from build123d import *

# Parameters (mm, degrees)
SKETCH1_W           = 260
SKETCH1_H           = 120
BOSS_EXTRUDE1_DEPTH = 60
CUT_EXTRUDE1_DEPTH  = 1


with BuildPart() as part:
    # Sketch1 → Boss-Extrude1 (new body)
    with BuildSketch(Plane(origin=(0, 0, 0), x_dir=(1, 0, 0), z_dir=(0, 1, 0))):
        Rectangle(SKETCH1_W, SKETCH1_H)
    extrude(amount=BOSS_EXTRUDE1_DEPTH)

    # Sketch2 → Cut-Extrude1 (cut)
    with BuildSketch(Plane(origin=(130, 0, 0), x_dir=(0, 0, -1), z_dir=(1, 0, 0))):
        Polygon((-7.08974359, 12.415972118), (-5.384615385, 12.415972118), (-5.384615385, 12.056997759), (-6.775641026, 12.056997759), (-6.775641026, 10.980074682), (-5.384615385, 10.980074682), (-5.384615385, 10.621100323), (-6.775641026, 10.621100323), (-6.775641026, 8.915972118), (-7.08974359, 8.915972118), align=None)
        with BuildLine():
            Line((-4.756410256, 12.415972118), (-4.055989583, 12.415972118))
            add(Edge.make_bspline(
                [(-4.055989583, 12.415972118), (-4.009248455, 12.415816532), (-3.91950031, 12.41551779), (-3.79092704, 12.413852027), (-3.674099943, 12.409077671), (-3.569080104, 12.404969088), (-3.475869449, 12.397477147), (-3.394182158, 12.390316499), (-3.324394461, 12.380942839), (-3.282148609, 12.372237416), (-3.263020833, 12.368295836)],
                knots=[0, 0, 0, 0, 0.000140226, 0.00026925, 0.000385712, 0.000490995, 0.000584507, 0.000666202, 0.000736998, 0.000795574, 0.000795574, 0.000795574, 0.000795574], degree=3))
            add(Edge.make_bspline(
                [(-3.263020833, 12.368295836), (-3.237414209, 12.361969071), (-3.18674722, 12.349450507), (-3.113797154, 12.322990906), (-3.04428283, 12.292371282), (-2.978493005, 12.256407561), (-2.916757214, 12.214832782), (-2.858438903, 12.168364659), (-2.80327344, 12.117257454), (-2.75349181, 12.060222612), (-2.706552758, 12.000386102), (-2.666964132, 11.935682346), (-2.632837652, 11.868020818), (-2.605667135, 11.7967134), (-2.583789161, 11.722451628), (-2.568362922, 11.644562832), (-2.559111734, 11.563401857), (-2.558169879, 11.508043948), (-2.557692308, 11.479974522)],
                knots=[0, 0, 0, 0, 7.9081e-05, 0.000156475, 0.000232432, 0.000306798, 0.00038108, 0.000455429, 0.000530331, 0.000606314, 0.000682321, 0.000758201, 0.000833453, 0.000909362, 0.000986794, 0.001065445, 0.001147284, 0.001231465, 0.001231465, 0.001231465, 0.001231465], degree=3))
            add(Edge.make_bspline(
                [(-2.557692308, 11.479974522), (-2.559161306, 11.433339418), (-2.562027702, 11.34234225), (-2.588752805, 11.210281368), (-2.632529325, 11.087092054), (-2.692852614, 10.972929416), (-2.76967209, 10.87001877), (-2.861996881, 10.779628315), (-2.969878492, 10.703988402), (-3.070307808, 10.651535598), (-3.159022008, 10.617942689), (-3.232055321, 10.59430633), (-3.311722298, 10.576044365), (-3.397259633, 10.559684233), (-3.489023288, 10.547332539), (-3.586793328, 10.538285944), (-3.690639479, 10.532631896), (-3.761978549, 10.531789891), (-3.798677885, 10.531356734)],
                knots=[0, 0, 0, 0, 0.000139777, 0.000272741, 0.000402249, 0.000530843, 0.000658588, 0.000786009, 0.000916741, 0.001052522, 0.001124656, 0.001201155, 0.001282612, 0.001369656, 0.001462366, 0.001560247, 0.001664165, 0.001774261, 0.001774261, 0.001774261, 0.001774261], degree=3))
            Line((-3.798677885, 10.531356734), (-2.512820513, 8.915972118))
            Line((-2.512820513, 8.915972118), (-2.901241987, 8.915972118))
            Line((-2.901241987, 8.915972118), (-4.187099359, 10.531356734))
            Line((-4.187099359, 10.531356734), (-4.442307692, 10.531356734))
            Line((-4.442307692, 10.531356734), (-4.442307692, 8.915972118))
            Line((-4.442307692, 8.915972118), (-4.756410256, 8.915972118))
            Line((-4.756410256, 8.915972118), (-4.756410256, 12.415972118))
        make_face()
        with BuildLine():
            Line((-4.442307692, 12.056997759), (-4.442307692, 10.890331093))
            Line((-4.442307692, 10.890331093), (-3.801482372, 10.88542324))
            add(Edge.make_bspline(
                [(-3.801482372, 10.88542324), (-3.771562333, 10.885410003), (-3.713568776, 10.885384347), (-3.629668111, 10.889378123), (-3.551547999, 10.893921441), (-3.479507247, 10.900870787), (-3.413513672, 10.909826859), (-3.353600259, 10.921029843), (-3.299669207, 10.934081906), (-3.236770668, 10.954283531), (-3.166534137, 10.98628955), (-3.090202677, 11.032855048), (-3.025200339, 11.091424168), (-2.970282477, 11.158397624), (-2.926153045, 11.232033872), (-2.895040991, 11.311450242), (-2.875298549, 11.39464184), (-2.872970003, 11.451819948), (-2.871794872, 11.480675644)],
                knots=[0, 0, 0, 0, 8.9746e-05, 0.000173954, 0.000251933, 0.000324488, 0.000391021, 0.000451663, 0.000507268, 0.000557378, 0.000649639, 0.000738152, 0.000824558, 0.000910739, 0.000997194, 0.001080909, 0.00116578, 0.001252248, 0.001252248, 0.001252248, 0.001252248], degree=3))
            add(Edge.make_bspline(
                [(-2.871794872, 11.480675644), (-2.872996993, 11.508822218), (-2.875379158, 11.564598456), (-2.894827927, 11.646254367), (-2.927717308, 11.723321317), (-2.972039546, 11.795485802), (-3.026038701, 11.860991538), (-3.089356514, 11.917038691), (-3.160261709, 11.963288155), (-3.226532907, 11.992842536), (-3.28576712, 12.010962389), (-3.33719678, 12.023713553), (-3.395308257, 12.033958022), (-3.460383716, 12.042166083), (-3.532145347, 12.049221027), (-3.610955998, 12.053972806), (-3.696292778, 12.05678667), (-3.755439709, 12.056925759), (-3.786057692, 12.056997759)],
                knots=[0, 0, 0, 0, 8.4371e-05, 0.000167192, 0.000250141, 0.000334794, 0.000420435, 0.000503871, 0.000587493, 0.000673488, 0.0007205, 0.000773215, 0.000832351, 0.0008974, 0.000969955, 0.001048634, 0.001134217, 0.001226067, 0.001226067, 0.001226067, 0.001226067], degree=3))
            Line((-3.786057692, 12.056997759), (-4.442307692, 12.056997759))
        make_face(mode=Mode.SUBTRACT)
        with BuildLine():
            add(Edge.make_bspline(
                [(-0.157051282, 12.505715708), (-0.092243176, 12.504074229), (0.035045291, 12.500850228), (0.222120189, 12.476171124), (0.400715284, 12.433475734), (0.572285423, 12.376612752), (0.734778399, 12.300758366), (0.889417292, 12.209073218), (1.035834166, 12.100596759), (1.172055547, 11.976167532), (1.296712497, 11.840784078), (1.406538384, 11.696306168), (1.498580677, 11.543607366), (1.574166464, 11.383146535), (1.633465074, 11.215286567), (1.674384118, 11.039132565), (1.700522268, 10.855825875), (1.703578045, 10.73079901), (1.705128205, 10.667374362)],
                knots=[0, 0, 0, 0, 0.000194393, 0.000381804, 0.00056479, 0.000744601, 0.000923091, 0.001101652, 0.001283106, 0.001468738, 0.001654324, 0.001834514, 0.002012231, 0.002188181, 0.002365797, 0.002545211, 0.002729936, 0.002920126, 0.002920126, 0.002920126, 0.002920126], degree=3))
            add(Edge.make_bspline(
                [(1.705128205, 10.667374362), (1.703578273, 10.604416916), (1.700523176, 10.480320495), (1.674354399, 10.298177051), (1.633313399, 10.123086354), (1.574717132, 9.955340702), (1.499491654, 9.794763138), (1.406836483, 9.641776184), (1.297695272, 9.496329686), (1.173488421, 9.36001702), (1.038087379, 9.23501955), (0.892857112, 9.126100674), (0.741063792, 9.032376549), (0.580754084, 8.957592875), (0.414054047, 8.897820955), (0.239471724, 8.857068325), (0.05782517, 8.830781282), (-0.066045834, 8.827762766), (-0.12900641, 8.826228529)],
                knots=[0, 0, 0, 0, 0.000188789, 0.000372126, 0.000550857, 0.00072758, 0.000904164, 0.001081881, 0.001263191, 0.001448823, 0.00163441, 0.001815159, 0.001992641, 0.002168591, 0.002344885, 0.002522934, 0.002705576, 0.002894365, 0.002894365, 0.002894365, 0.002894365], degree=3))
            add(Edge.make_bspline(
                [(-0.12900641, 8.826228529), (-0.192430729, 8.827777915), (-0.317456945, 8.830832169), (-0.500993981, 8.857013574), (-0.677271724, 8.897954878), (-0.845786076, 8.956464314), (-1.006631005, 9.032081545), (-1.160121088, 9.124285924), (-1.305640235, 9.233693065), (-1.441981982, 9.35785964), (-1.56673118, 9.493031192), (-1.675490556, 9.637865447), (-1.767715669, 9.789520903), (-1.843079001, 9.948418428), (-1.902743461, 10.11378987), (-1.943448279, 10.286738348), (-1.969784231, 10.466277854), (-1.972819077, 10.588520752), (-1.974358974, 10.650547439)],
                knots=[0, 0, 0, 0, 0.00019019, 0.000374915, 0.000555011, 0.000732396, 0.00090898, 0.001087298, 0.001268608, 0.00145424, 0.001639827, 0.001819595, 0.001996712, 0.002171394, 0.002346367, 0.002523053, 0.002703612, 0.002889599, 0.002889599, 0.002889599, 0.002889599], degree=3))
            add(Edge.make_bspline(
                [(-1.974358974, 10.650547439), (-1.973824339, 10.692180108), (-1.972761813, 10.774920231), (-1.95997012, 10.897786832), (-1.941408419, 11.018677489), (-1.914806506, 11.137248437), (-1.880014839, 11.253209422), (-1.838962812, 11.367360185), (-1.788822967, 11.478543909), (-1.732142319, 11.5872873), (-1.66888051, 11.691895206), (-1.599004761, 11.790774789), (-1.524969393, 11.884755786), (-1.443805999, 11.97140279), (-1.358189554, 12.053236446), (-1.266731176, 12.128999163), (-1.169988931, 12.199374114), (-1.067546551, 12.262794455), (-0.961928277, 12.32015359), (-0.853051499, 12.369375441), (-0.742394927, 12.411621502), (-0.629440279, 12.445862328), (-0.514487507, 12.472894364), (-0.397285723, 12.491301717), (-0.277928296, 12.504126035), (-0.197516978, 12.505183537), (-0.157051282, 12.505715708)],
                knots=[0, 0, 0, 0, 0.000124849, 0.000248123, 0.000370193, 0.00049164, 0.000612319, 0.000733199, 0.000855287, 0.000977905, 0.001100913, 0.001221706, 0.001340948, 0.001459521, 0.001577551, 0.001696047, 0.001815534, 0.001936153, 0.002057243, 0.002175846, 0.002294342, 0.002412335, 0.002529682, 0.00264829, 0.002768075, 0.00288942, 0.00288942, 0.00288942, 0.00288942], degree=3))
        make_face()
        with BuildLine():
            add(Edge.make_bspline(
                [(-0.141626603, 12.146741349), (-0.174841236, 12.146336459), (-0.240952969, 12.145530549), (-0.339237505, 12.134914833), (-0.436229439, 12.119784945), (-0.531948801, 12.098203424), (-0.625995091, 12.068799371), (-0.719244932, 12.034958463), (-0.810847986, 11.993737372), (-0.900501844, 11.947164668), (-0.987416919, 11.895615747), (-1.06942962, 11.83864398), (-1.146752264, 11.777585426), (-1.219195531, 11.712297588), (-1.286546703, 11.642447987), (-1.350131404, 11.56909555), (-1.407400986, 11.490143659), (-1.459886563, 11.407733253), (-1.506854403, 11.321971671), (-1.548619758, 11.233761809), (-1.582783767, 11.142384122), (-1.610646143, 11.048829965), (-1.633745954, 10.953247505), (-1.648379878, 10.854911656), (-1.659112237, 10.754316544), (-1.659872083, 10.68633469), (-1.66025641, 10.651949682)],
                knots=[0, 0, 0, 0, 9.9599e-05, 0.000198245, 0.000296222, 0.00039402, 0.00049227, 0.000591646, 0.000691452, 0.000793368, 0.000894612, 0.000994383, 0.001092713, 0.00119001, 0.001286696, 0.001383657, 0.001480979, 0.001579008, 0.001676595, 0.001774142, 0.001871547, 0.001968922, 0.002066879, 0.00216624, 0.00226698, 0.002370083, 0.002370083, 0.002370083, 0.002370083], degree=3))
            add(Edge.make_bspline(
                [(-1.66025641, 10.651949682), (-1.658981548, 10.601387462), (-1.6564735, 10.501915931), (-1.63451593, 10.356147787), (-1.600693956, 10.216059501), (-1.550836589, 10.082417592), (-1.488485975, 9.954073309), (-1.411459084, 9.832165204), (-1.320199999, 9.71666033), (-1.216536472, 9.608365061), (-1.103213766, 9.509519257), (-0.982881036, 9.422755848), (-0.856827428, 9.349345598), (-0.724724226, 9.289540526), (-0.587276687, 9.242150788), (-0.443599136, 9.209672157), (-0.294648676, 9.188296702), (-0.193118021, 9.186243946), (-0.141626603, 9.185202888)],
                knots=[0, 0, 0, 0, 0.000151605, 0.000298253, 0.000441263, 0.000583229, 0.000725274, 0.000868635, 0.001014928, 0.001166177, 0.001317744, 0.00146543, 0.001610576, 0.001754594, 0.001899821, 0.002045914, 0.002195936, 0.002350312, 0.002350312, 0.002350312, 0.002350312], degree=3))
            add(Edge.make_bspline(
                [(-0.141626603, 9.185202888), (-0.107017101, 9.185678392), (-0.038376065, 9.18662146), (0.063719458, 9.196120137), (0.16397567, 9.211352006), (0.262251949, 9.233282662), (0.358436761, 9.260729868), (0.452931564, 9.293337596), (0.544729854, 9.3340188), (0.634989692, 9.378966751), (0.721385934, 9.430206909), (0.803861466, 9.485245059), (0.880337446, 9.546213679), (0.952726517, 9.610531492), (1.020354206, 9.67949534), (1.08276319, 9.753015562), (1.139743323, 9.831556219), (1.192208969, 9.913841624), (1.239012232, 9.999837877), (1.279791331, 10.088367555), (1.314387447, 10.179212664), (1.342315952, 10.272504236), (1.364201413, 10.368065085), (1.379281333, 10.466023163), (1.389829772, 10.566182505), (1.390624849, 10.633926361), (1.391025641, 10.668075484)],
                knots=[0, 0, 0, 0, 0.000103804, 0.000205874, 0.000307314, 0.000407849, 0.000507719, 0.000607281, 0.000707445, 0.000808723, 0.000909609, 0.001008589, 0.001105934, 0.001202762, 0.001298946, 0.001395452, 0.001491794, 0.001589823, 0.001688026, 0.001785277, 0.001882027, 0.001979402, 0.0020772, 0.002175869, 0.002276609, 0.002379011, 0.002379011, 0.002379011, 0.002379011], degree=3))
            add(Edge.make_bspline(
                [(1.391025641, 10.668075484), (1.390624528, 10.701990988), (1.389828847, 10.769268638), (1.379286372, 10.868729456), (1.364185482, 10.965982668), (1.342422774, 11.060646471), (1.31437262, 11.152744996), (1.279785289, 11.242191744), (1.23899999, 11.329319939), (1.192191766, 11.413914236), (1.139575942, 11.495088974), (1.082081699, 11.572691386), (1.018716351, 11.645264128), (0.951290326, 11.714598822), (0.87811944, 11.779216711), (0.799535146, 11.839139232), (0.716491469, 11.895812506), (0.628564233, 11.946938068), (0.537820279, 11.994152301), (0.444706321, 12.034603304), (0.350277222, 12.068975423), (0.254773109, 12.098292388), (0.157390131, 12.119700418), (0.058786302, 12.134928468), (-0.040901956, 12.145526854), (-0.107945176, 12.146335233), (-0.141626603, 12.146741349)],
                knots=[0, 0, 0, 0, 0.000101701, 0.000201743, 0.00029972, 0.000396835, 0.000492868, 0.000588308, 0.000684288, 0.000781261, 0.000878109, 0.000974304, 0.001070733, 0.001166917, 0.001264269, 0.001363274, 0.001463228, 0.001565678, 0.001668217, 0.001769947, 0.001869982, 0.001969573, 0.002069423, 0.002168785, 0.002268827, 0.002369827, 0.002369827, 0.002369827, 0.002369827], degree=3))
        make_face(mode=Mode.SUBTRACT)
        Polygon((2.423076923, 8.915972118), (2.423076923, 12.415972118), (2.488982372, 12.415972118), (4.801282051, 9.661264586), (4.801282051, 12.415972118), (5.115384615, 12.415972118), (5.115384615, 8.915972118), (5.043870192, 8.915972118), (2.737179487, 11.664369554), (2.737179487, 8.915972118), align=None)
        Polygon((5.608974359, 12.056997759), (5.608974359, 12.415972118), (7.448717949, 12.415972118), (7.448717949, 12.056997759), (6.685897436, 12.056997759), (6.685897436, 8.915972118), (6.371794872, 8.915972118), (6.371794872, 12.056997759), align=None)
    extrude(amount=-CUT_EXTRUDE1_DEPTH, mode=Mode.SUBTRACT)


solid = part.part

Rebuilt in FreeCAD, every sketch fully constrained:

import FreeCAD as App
import Part
import Sketcher
Q = App.Units.Quantity


def add_polygon(sketch, points):
    """Adds a closed chain of lines whose ends are joined by coincident constraints."""
    first, n = sketch.GeometryCount, len(points)
    for a, b in zip(points, points[1:] + points[:1]):
        sketch.addGeometry(Part.LineSegment(App.Vector(*a, 0), App.Vector(*b, 0)), False)
    for i in range(n):
        sketch.addConstraint(Sketcher.Constraint("Coincident", first + i, 2, first + (i + 1) % n, 1))

doc = App.newDocument("Part")
body = doc.addObject("PartDesign::Body", "Body")

# Sketch on XZ plane
sketch1 = doc.addObject("Sketcher::SketchObject", "Sketch")
body.addObject(sketch1)
sketch1.AttachmentSupport = (doc.XZ_Plane, [""])
sketch1.MapMode = "FlatFace"
add_polygon(sketch1, [(-130, -60), (-130, 60), (130, 60), (130, -60)])  # lines 0-3
sketch1.addConstraint([
    Sketcher.Constraint("Vertical", 0),
    Sketcher.Constraint("Horizontal", 1),
    Sketcher.Constraint("Vertical", 2),
    Sketcher.Constraint("Horizontal", 3),
    Sketcher.Constraint("Symmetric", 0, 2, 2, 2, -1, 1),
    Sketcher.Constraint("DistanceX", 1, 1, 1, 2, Q("260 mm")),
    Sketcher.Constraint("DistanceY", 0, 1, 0, 2, Q("120 mm")),
])
pad1 = doc.addObject("PartDesign::Pad", "Pad")
body.addObject(pad1)
pad1.Profile = sketch1
pad1.Length = 60
pad1.Reversed = True

# Sketch on YZ plane
sketch2 = doc.addObject("Sketcher::SketchObject", "Sketch001")
body.addObject(sketch2)
sketch2.AttachmentSupport = (doc.YZ_Plane, [""])
sketch2.MapMode = "FlatFace"
sketch2.AttachmentOffset = App.Placement(App.Vector(0, 0, 130), App.Rotation())
add_polygon(sketch2, [(12.415972, 5.384615), (12.415972, 7.089744), (8.915972, 7.089744), (8.915972, 6.775641), (10.6211, 6.775641), (10.6211, 5.384615), (10.980075, 5.384615), (10.980075, 6.775641), (12.056998, 6.775641), (12.056998, 5.384615)])  # lines 0-9
sketch2.addGeometry(Part.LineSegment(App.Vector(12.415972, 4.05599, 0), App.Vector(12.415972, 4.75641, 0)), False)  # 10
sketch2.addGeometry(Part.LineSegment(App.Vector(12.415972, 4.75641, 0), App.Vector(8.915972, 4.75641, 0)), False)  # 11
sketch2.addGeometry(Part.LineSegment(App.Vector(8.915972, 4.75641, 0), App.Vector(8.915972, 4.442308, 0)), False)  # 12
sketch2.addGeometry(Part.LineSegment(App.Vector(8.915972, 4.442308, 0), App.Vector(10.531357, 4.442308, 0)), False)  # 13
sketch2.addGeometry(Part.LineSegment(App.Vector(10.531357, 4.442308, 0), App.Vector(10.531357, 4.187099, 0)), False)  # 14
sketch2.addGeometry(Part.LineSegment(App.Vector(10.531357, 4.187099, 0), App.Vector(8.915972, 2.901242, 0)), False)  # 15
sketch2.addGeometry(Part.LineSegment(App.Vector(8.915972, 2.901242, 0), App.Vector(8.915972, 2.512821, 0)), False)  # 16
sketch2.addGeometry(Part.LineSegment(App.Vector(8.915972, 2.512821, 0), App.Vector(10.531357, 3.798678, 0)), False)  # 17
sketch2.addGeometry(Part.BSplineCurve([App.Vector(11.479975, 2.557692, 0), App.Vector(11.433339, 2.559161, 0), App.Vector(11.342342, 2.562028, 0), App.Vector(11.210281, 2.588753, 0), App.Vector(11.087092, 2.632529, 0), App.Vector(10.972929, 2.692853, 0), App.Vector(10.870019, 2.769672, 0), App.Vector(10.779628, 2.861997, 0), App.Vector(10.703988, 2.969878, 0), App.Vector(10.651536, 3.070308, 0), App.Vector(10.617943, 3.159022, 0), App.Vector(10.594306, 3.232055, 0), App.Vector(10.576044, 3.311722, 0), App.Vector(10.559684, 3.39726, 0), App.Vector(10.547333, 3.489023, 0), App.Vector(10.538286, 3.586793, 0), App.Vector(10.532632, 3.690639, 0), App.Vector(10.53179, 3.761979, 0), App.Vector(10.531357, 3.798678, 0)], [4, 1, 1, 1, 1, 1, 1, 1, 1, 1, 1, 1, 1, 1, 1, 1, 4], [0, 0.000139777, 0.000272741, 0.000402249, 0.000530843, 0.000658588, 0.000786009, 0.000916741, 0.001052522, 0.001124656, 0.001201155, 0.001282612, 0.001369656, 0.001462366, 0.001560247, 0.001664165, 0.001774261], False, 3, [1, 1, 1, 1, 1, 1, 1, 1, 1, 1, 1, 1, 1, 1, 1, 1, 1, 1, 1], False), False)  # 18
sketch2.addGeometry(Part.BSplineCurve([App.Vector(12.368296, 3.263021, 0), App.Vector(12.361969, 3.237414, 0), App.Vector(12.349451, 3.186747, 0), App.Vector(12.322991, 3.113797, 0), App.Vector(12.292371, 3.044283, 0), App.Vector(12.256408, 2.978493, 0), App.Vector(12.214833, 2.916757, 0), App.Vector(12.168365, 2.858439, 0), App.Vector(12.117257, 2.803273, 0), App.Vector(12.060223, 2.753492, 0), App.Vector(12.000386, 2.706553, 0), App.Vector(11.935682, 2.666964, 0), App.Vector(11.868021, 2.632838, 0), App.Vector(11.796713, 2.605667, 0), App.Vector(11.722452, 2.583789, 0), App.Vector(11.644563, 2.568363, 0), App.Vector(11.563402, 2.559112, 0), App.Vector(11.508044, 2.55817, 0), App.Vector(11.479975, 2.557692, 0)], [4, 1, 1, 1, 1, 1, 1, 1, 1, 1, 1, 1, 1, 1, 1, 1, 4], [0, 0.000079081, 0.000156475, 0.000232432, 0.000306798, 0.00038108, 0.000455429, 0.000530331, 0.000606314, 0.000682321, 0.000758201, 0.000833453, 0.000909362, 0.000986794, 0.001065445, 0.001147284, 0.001231465], False, 3, [1, 1, 1, 1, 1, 1, 1, 1, 1, 1, 1, 1, 1, 1, 1, 1, 1, 1, 1], False), False)  # 19
sketch2.addGeometry(Part.BSplineCurve([App.Vector(12.415972, 4.05599, 0), App.Vector(12.415817, 4.009248, 0), App.Vector(12.415518, 3.9195, 0), App.Vector(12.413852, 3.790927, 0), App.Vector(12.409078, 3.6741, 0), App.Vector(12.404969, 3.56908, 0), App.Vector(12.397477, 3.475869, 0), App.Vector(12.390316, 3.394182, 0), App.Vector(12.380943, 3.324394, 0), App.Vector(12.372237, 3.282149, 0), App.Vector(12.368296, 3.263021, 0)], [4, 1, 1, 1, 1, 1, 1, 1, 4], [0, 0.000140226, 0.00026925, 0.000385712, 0.000490995, 0.000584507, 0.000666202, 0.000736998, 0.000795574], False, 3, [1, 1, 1, 1, 1, 1, 1, 1, 1, 1, 1], False), False)  # 20
sketch2.addGeometry(Part.LineSegment(App.Vector(12.056998, 4.442308, 0), App.Vector(12.056998, 3.786058, 0)), False)  # 21
sketch2.addGeometry(Part.BSplineCurve([App.Vector(11.480676, 2.871795, 0), App.Vector(11.508822, 2.872997, 0), App.Vector(11.564598, 2.875379, 0), App.Vector(11.646254, 2.894828, 0), App.Vector(11.723321, 2.927717, 0), App.Vector(11.795486, 2.97204, 0), App.Vector(11.860992, 3.026039, 0), App.Vector(11.917039, 3.089357, 0), App.Vector(11.963288, 3.160262, 0), App.Vector(11.992843, 3.226533, 0), App.Vector(12.010962, 3.285767, 0), App.Vector(12.023714, 3.337197, 0), App.Vector(12.033958, 3.395308, 0), App.Vector(12.042166, 3.460384, 0), App.Vector(12.049221, 3.532145, 0), App.Vector(12.053973, 3.610956, 0), App.Vector(12.056787, 3.696293, 0), App.Vector(12.056926, 3.75544, 0), App.Vector(12.056998, 3.786058, 0)], [4, 1, 1, 1, 1, 1, 1, 1, 1, 1, 1, 1, 1, 1, 1, 1, 4], [0, 0.000084371, 0.000167192, 0.000250141, 0.000334794, 0.000420435, 0.000503871, 0.000587493, 0.000673488, 0.0007205, 0.000773215, 0.000832351, 0.0008974, 0.000969955, 0.001048634, 0.001134217, 0.001226067], False, 3, [1, 1, 1, 1, 1, 1, 1, 1, 1, 1, 1, 1, 1, 1, 1, 1, 1, 1, 1], False), False)  # 22
sketch2.addGeometry(Part.BSplineCurve([App.Vector(10.885423, 3.801482, 0), App.Vector(10.88541, 3.771562, 0), App.Vector(10.885384, 3.713569, 0), App.Vector(10.889378, 3.629668, 0), App.Vector(10.893921, 3.551548, 0), App.Vector(10.900871, 3.479507, 0), App.Vector(10.909827, 3.413514, 0), App.Vector(10.92103, 3.3536, 0), App.Vector(10.934082, 3.299669, 0), App.Vector(10.954284, 3.236771, 0), App.Vector(10.98629, 3.166534, 0), App.Vector(11.032855, 3.090203, 0), App.Vector(11.091424, 3.0252, 0), App.Vector(11.158398, 2.970282, 0), App.Vector(11.232034, 2.926153, 0), App.Vector(11.31145, 2.895041, 0), App.Vector(11.394642, 2.875299, 0), App.Vector(11.45182, 2.87297, 0), App.Vector(11.480676, 2.871795, 0)], [4, 1, 1, 1, 1, 1, 1, 1, 1, 1, 1, 1, 1, 1, 1, 1, 4], [0, 0.000089746, 0.000173954, 0.000251933, 0.000324488, 0.000391021, 0.000451663, 0.000507268, 0.000557378, 0.000649639, 0.000738152, 0.000824558, 0.000910739, 0.000997194, 0.001080909, 0.00116578, 0.001252248], False, 3, [1, 1, 1, 1, 1, 1, 1, 1, 1, 1, 1, 1, 1, 1, 1, 1, 1, 1, 1], False), False)  # 23
sketch2.addGeometry(Part.LineSegment(App.Vector(10.885423, 3.801482, 0), App.Vector(10.890331, 4.442308, 0)), False)  # 24
sketch2.addGeometry(Part.LineSegment(App.Vector(10.890331, 4.442308, 0), App.Vector(12.056998, 4.442308, 0)), False)  # 25
sketch2.addGeometry(Part.BSplineCurve([App.Vector(12.505716, 0.157051, 0), App.Vector(12.504074, 0.092243, 0), App.Vector(12.50085, -0.035045, 0), App.Vector(12.476171, -0.22212, 0), App.Vector(12.433476, -0.400715, 0), App.Vector(12.376613, -0.572285, 0), App.Vector(12.300758, -0.734778, 0), App.Vector(12.209073, -0.889417, 0), App.Vector(12.100597, -1.035834, 0), App.Vector(11.976168, -1.172056, 0), App.Vector(11.840784, -1.296712, 0), App.Vector(11.696306, -1.406538, 0), App.Vector(11.543607, -1.498581, 0), App.Vector(11.383147, -1.574166, 0), App.Vector(11.215287, -1.633465, 0), App.Vector(11.039133, -1.674384, 0), App.Vector(10.855826, -1.700522, 0), App.Vector(10.730799, -1.703578, 0), App.Vector(10.667374, -1.705128, 0)], [4, 1, 1, 1, 1, 1, 1, 1, 1, 1, 1, 1, 1, 1, 1, 1, 4], [0, 0.000194393, 0.000381804, 0.00056479, 0.000744601, 0.000923091, 0.001101652, 0.001283106, 0.001468738, 0.001654324, 0.001834514, 0.002012231, 0.002188181, 0.002365797, 0.002545211, 0.002729936, 0.002920126], False, 3, [1, 1, 1, 1, 1, 1, 1, 1, 1, 1, 1, 1, 1, 1, 1, 1, 1, 1, 1], False), False)  # 26
sketch2.addGeometry(Part.BSplineCurve([App.Vector(10.650547, 1.974359, 0), App.Vector(10.69218, 1.973824, 0), App.Vector(10.77492, 1.972762, 0), App.Vector(10.897787, 1.95997, 0), App.Vector(11.018677, 1.941408, 0), App.Vector(11.137248, 1.914807, 0), App.Vector(11.253209, 1.880015, 0), App.Vector(11.36736, 1.838963, 0), App.Vector(11.478544, 1.788823, 0), App.Vector(11.587287, 1.732142, 0), App.Vector(11.691895, 1.668881, 0), App.Vector(11.790775, 1.599005, 0), App.Vector(11.884756, 1.524969, 0), App.Vector(11.971403, 1.443806, 0), App.Vector(12.053236, 1.35819, 0), App.Vector(12.128999, 1.266731, 0), App.Vector(12.199374, 1.169989, 0), App.Vector(12.262794, 1.067547, 0), App.Vector(12.320154, 0.961928, 0), App.Vector(12.369375, 0.853051, 0), App.Vector(12.411622, 0.742395, 0), App.Vector(12.445862, 0.62944, 0), App.Vector(12.472894, 0.514488, 0), App.Vector(12.491302, 0.397286, 0), App.Vector(12.504126, 0.277928, 0), App.Vector(12.505184, 0.197517, 0), App.Vector(12.505716, 0.157051, 0)], [4, 1, 1, 1, 1, 1, 1, 1, 1, 1, 1, 1, 1, 1, 1, 1, 1, 1, 1, 1, 1, 1, 1, 1, 4], [0, 0.000124849, 0.000248123, 0.000370193, 0.00049164, 0.000612319, 0.000733199, 0.000855287, 0.000977905, 0.001100913, 0.001221706, 0.001340948, 0.001459521, 0.001577551, 0.001696047, 0.001815534, 0.001936153, 0.002057243, 0.002175846, 0.002294342, 0.002412335, 0.002529682, 0.00264829, 0.002768075, 0.00288942], False, 3, [1, 1, 1, 1, 1, 1, 1, 1, 1, 1, 1, 1, 1, 1, 1, 1, 1, 1, 1, 1, 1, 1, 1, 1, 1, 1, 1], False), False)  # 27
sketch2.addGeometry(Part.BSplineCurve([App.Vector(8.826229, 0.129006, 0), App.Vector(8.827778, 0.192431, 0), App.Vector(8.830832, 0.317457, 0), App.Vector(8.857014, 0.500994, 0), App.Vector(8.897955, 0.677272, 0), App.Vector(8.956464, 0.845786, 0), App.Vector(9.032082, 1.006631, 0), App.Vector(9.124286, 1.160121, 0), App.Vector(9.233693, 1.30564, 0), App.Vector(9.35786, 1.441982, 0), App.Vector(9.493031, 1.566731, 0), App.Vector(9.637865, 1.675491, 0), App.Vector(9.789521, 1.767716, 0), App.Vector(9.948418, 1.843079, 0), App.Vector(10.11379, 1.902743, 0), App.Vector(10.286738, 1.943448, 0), App.Vector(10.466278, 1.969784, 0), App.Vector(10.588521, 1.972819, 0), App.Vector(10.650547, 1.974359, 0)], [4, 1, 1, 1, 1, 1, 1, 1, 1, 1, 1, 1, 1, 1, 1, 1, 4], [0, 0.00019019, 0.000374915, 0.000555011, 0.000732396, 0.00090898, 0.001087298, 0.001268608, 0.00145424, 0.001639827, 0.001819595, 0.001996712, 0.002171394, 0.002346367, 0.002523053, 0.002703612, 0.002889599], False, 3, [1, 1, 1, 1, 1, 1, 1, 1, 1, 1, 1, 1, 1, 1, 1, 1, 1, 1, 1], False), False)  # 28
sketch2.addGeometry(Part.BSplineCurve([App.Vector(10.667374, -1.705128, 0), App.Vector(10.604417, -1.703578, 0), App.Vector(10.48032, -1.700523, 0), App.Vector(10.298177, -1.674354, 0), App.Vector(10.123086, -1.633313, 0), App.Vector(9.955341, -1.574717, 0), App.Vector(9.794763, -1.499492, 0), App.Vector(9.641776, -1.406836, 0), App.Vector(9.49633, -1.297695, 0), App.Vector(9.360017, -1.173488, 0), App.Vector(9.23502, -1.038087, 0), App.Vector(9.126101, -0.892857, 0), App.Vector(9.032377, -0.741064, 0), App.Vector(8.957593, -0.580754, 0), App.Vector(8.897821, -0.414054, 0), App.Vector(8.857068, -0.239472, 0), App.Vector(8.830781, -0.057825, 0), App.Vector(8.827763, 0.066046, 0), App.Vector(8.826229, 0.129006, 0)], [4, 1, 1, 1, 1, 1, 1, 1, 1, 1, 1, 1, 1, 1, 1, 1, 4], [0, 0.000188789, 0.000372126, 0.000550857, 0.00072758, 0.000904164, 0.001081881, 0.001263191, 0.001448823, 0.00163441, 0.001815159, 0.001992641, 0.002168591, 0.002344885, 0.002522934, 0.002705576, 0.002894365], False, 3, [1, 1, 1, 1, 1, 1, 1, 1, 1, 1, 1, 1, 1, 1, 1, 1, 1, 1, 1], False), False)  # 29
sketch2.addGeometry(Part.BSplineCurve([App.Vector(10.668075, -1.391026, 0), App.Vector(10.701991, -1.390625, 0), App.Vector(10.769269, -1.389829, 0), App.Vector(10.868729, -1.379286, 0), App.Vector(10.965983, -1.364185, 0), App.Vector(11.060646, -1.342423, 0), App.Vector(11.152745, -1.314373, 0), App.Vector(11.242192, -1.279785, 0), App.Vector(11.32932, -1.239, 0), App.Vector(11.413914, -1.192192, 0), App.Vector(11.495089, -1.139576, 0), App.Vector(11.572691, -1.082082, 0), App.Vector(11.645264, -1.018716, 0), App.Vector(11.714599, -0.95129, 0), App.Vector(11.779217, -0.878119, 0), App.Vector(11.839139, -0.799535, 0), App.Vector(11.895813, -0.716491, 0), App.Vector(11.946938, -0.628564, 0), App.Vector(11.994152, -0.53782, 0), App.Vector(12.034603, -0.444706, 0), App.Vector(12.068975, -0.350277, 0), App.Vector(12.098292, -0.254773, 0), App.Vector(12.1197, -0.15739, 0), App.Vector(12.134928, -0.058786, 0), App.Vector(12.145527, 0.040902, 0), App.Vector(12.146335, 0.107945, 0), App.Vector(12.146741, 0.141627, 0)], [4, 1, 1, 1, 1, 1, 1, 1, 1, 1, 1, 1, 1, 1, 1, 1, 1, 1, 1, 1, 1, 1, 1, 1, 4], [0, 0.000101701, 0.000201743, 0.00029972, 0.000396835, 0.000492868, 0.000588308, 0.000684288, 0.000781261, 0.000878109, 0.000974304, 0.001070733, 0.001166917, 0.001264269, 0.001363274, 0.001463228, 0.001565678, 0.001668217, 0.001769947, 0.001869982, 0.001969573, 0.002069423, 0.002168785, 0.002268827, 0.002369827], False, 3, [1, 1, 1, 1, 1, 1, 1, 1, 1, 1, 1, 1, 1, 1, 1, 1, 1, 1, 1, 1, 1, 1, 1, 1, 1, 1, 1], False), False)  # 30
sketch2.addGeometry(Part.BSplineCurve([App.Vector(9.185203, 0.141627, 0), App.Vector(9.185678, 0.107017, 0), App.Vector(9.186621, 0.038376, 0), App.Vector(9.19612, -0.063719, 0), App.Vector(9.211352, -0.163976, 0), App.Vector(9.233283, -0.262252, 0), App.Vector(9.26073, -0.358437, 0), App.Vector(9.293338, -0.452932, 0), App.Vector(9.334019, -0.54473, 0), App.Vector(9.378967, -0.63499, 0), App.Vector(9.430207, -0.721386, 0), App.Vector(9.485245, -0.803861, 0), App.Vector(9.546214, -0.880337, 0), App.Vector(9.610531, -0.952727, 0), App.Vector(9.679495, -1.020354, 0), App.Vector(9.753016, -1.082763, 0), App.Vector(9.831556, -1.139743, 0), App.Vector(9.913842, -1.192209, 0), App.Vector(9.999838, -1.239012, 0), App.Vector(10.088368, -1.279791, 0), App.Vector(10.179213, -1.314387, 0), App.Vector(10.272504, -1.342316, 0), App.Vector(10.368065, -1.364201, 0), App.Vector(10.466023, -1.379281, 0), App.Vector(10.566183, -1.38983, 0), App.Vector(10.633926, -1.390625, 0), App.Vector(10.668075, -1.391026, 0)], [4, 1, 1, 1, 1, 1, 1, 1, 1, 1, 1, 1, 1, 1, 1, 1, 1, 1, 1, 1, 1, 1, 1, 1, 4], [0, 0.000103804, 0.000205874, 0.000307314, 0.000407849, 0.000507719, 0.000607281, 0.000707445, 0.000808723, 0.000909609, 0.001008589, 0.001105934, 0.001202762, 0.001298946, 0.001395452, 0.001491794, 0.001589823, 0.001688026, 0.001785277, 0.001882027, 0.001979402, 0.0020772, 0.002175869, 0.002276609, 0.002379011], False, 3, [1, 1, 1, 1, 1, 1, 1, 1, 1, 1, 1, 1, 1, 1, 1, 1, 1, 1, 1, 1, 1, 1, 1, 1, 1, 1, 1], False), False)  # 31
sketch2.addGeometry(Part.BSplineCurve([App.Vector(10.65195, 1.660256, 0), App.Vector(10.601387, 1.658982, 0), App.Vector(10.501916, 1.656473, 0), App.Vector(10.356148, 1.634516, 0), App.Vector(10.21606, 1.600694, 0), App.Vector(10.082418, 1.550837, 0), App.Vector(9.954073, 1.488486, 0), App.Vector(9.832165, 1.411459, 0), App.Vector(9.71666, 1.3202, 0), App.Vector(9.608365, 1.216536, 0), App.Vector(9.509519, 1.103214, 0), App.Vector(9.422756, 0.982881, 0), App.Vector(9.349346, 0.856827, 0), App.Vector(9.289541, 0.724724, 0), App.Vector(9.242151, 0.587277, 0), App.Vector(9.209672, 0.443599, 0), App.Vector(9.188297, 0.294649, 0), App.Vector(9.186244, 0.193118, 0), App.Vector(9.185203, 0.141627, 0)], [4, 1, 1, 1, 1, 1, 1, 1, 1, 1, 1, 1, 1, 1, 1, 1, 4], [0, 0.000151605, 0.000298253, 0.000441263, 0.000583229, 0.000725274, 0.000868635, 0.001014928, 0.001166177, 0.001317744, 0.00146543, 0.001610576, 0.001754594, 0.001899821, 0.002045914, 0.002195936, 0.002350312], False, 3, [1, 1, 1, 1, 1, 1, 1, 1, 1, 1, 1, 1, 1, 1, 1, 1, 1, 1, 1], False), False)  # 32
sketch2.addGeometry(Part.BSplineCurve([App.Vector(12.146741, 0.141627, 0), App.Vector(12.146336, 0.174841, 0), App.Vector(12.145531, 0.240953, 0), App.Vector(12.134915, 0.339238, 0), App.Vector(12.119785, 0.436229, 0), App.Vector(12.098203, 0.531949, 0), App.Vector(12.068799, 0.625995, 0), App.Vector(12.034958, 0.719245, 0), App.Vector(11.993737, 0.810848, 0), App.Vector(11.947165, 0.900502, 0), App.Vector(11.895616, 0.987417, 0), App.Vector(11.838644, 1.06943, 0), App.Vector(11.777585, 1.146752, 0), App.Vector(11.712298, 1.219196, 0), App.Vector(11.642448, 1.286547, 0), App.Vector(11.569096, 1.350131, 0), App.Vector(11.490144, 1.407401, 0), App.Vector(11.407733, 1.459887, 0), App.Vector(11.321972, 1.506854, 0), App.Vector(11.233762, 1.54862, 0), App.Vector(11.142384, 1.582784, 0), App.Vector(11.04883, 1.610646, 0), App.Vector(10.953248, 1.633746, 0), App.Vector(10.854912, 1.64838, 0), App.Vector(10.754317, 1.659112, 0), App.Vector(10.686335, 1.659872, 0), App.Vector(10.65195, 1.660256, 0)], [4, 1, 1, 1, 1, 1, 1, 1, 1, 1, 1, 1, 1, 1, 1, 1, 1, 1, 1, 1, 1, 1, 1, 1, 4], [0, 0.000099599, 0.000198245, 0.000296222, 0.00039402, 0.00049227, 0.000591646, 0.000691452, 0.000793368, 0.000894612, 0.000994383, 0.001092713, 0.00119001, 0.001286696, 0.001383657, 0.001480979, 0.001579008, 0.001676595, 0.001774142, 0.001871547, 0.001968922, 0.002066879, 0.00216624, 0.00226698, 0.002370083], False, 3, [1, 1, 1, 1, 1, 1, 1, 1, 1, 1, 1, 1, 1, 1, 1, 1, 1, 1, 1, 1, 1, 1, 1, 1, 1, 1, 1], False), False)  # 33
add_polygon(sketch2, [(12.415972, -2.423077), (8.915972, -2.423077), (8.915972, -2.737179), (11.66437, -2.737179), (8.915972, -5.04387), (8.915972, -5.115385), (12.415972, -5.115385), (12.415972, -4.801282), (9.661265, -4.801282), (12.415972, -2.488982)])  # lines 34-43
add_polygon(sketch2, [(12.415972, -5.608974), (12.056998, -5.608974), (12.056998, -6.371795), (8.915972, -6.371795), (8.915972, -6.685897), (12.056998, -6.685897), (12.056998, -7.448718), (12.415972, -7.448718)])  # lines 44-51
sketch2.addConstraint([
    Sketcher.Constraint("Block", 18),
    Sketcher.Constraint("Block", 19),
    Sketcher.Constraint("Block", 20),
    Sketcher.Constraint("Block", 22),
    Sketcher.Constraint("Block", 23),
    Sketcher.Constraint("Block", 26),
    Sketcher.Constraint("Block", 27),
    Sketcher.Constraint("Block", 28),
    Sketcher.Constraint("Block", 29),
    Sketcher.Constraint("Block", 30),
    Sketcher.Constraint("Block", 31),
    Sketcher.Constraint("Block", 32),
    Sketcher.Constraint("Block", 33),
    Sketcher.Constraint("Coincident", 10, 2, 11, 1),
    Sketcher.Constraint("Coincident", 11, 2, 12, 1),
    Sketcher.Constraint("Coincident", 12, 2, 13, 1),
    Sketcher.Constraint("Coincident", 13, 2, 14, 1),
    Sketcher.Constraint("Coincident", 14, 2, 15, 1),
    Sketcher.Constraint("Coincident", 15, 2, 16, 1),
    Sketcher.Constraint("Coincident", 16, 2, 17, 1),
    Sketcher.Constraint("Coincident", 17, 2, 18, 2),
    Sketcher.Constraint("Coincident", 20, 1, 10, 1),
    Sketcher.Constraint("Coincident", 21, 2, 22, 2),
    Sketcher.Constraint("Coincident", 23, 1, 24, 1),
    Sketcher.Constraint("Coincident", 24, 2, 25, 1),
    Sketcher.Constraint("Coincident", 25, 2, 21, 1),
    Sketcher.Constraint("Vertical", 0),
    Sketcher.Constraint("Horizontal", 1),
    Sketcher.Constraint("Vertical", 2),
    Sketcher.Constraint("Horizontal", 3),
    Sketcher.Constraint("Vertical", 4),
    Sketcher.Constraint("Horizontal", 5),
    Sketcher.Constraint("Vertical", 6),
    Sketcher.Constraint("Horizontal", 7),
    Sketcher.Constraint("Vertical", 8),
    Sketcher.Constraint("Horizontal", 9),
    Sketcher.Constraint("Vertical", 10),
    Sketcher.Constraint("Horizontal", 11),
    Sketcher.Constraint("Vertical", 12),
    Sketcher.Constraint("Horizontal", 13),
    Sketcher.Constraint("Vertical", 14),
    Sketcher.Constraint("Vertical", 16),
    Sketcher.Constraint("Vertical", 21),
    Sketcher.Constraint("Horizontal", 25),
    Sketcher.Constraint("Horizontal", 34),
    Sketcher.Constraint("Vertical", 35),
    Sketcher.Constraint("Horizontal", 36),
    Sketcher.Constraint("Vertical", 38),
    Sketcher.Constraint("Horizontal", 39),
    Sketcher.Constraint("Vertical", 40),
    Sketcher.Constraint("Horizontal", 41),
    Sketcher.Constraint("Vertical", 43),
    Sketcher.Constraint("Horizontal", 44),
    Sketcher.Constraint("Vertical", 45),
    Sketcher.Constraint("Horizontal", 46),
    Sketcher.Constraint("Vertical", 47),
    Sketcher.Constraint("Horizontal", 48),
    Sketcher.Constraint("Vertical", 49),
    Sketcher.Constraint("Horizontal", 50),
    Sketcher.Constraint("Vertical", 51),
    Sketcher.Constraint("Parallel", 15, 17),
    Sketcher.Constraint("Horizontal", 3, 2, 6, 2),
    Sketcher.Constraint("Horizontal", 5, 2, 8, 2),
    Sketcher.Constraint("Horizontal", 13, 2, 24, 2),
    Sketcher.Constraint("Vertical", 9, 2, 10, 2),
    Sketcher.Constraint("Vertical", 2, 2, 11, 2),
    Sketcher.Constraint("Vertical", 12, 2, 15, 2),
    Sketcher.Constraint("Vertical", 14, 2, 17, 2),
    Sketcher.Constraint("Vertical", 8, 2, 21, 2),
    Sketcher.Constraint("Vertical", 16, 2, 34, 2),
    Sketcher.Constraint("Vertical", 35, 2, 37, 2),
    Sketcher.Constraint("Vertical", 10, 2, 39, 2),
    Sketcher.Constraint("Vertical", 40, 2, 42, 2),
    Sketcher.Constraint("Vertical", 25, 2, 44, 2),
    Sketcher.Constraint("Vertical", 38, 2, 46, 2),
    Sketcher.Constraint("Vertical", 45, 2, 48, 2),
    Sketcher.Constraint("Vertical", 43, 2, 50, 2),
    Sketcher.Constraint("Equal", 5, 9),
    Sketcher.Constraint("Equal", 3, 0),
    Sketcher.Constraint("Equal", 2, 12),
    Sketcher.Constraint("Equal", 12, 35),
    Sketcher.Constraint("Equal", 35, 40),
    Sketcher.Constraint("Equal", 40, 47),
    Sketcher.Constraint("Equal", 45, 49),
    Sketcher.Constraint("DistanceX", 1, 2, 1, 1, Q("3.5 mm")),
    Sketcher.Constraint("DistanceY", 35, 2, 16, 2, Q("5.25 mm")),
    Sketcher.Constraint("DistanceX", 3, 1, 3, 2, Q("1.705128 mm")),
    Sketcher.Constraint("DistanceY", 10, 1, 10, 2, Q("0.700421 mm")),
    Sketcher.Constraint("DistanceY", 14, 2, 14, 1, Q("0.255208 mm")),
    Sketcher.Constraint("DistanceY", 16, 2, 16, 1, Q("0.388421 mm")),
    Sketcher.Constraint("DistanceY", 45, 2, 45, 1, Q("0.762821 mm")),
    Sketcher.Constraint("DistanceY", 40, 2, 42, 2, Q("2.3123 mm")),
    Sketcher.Constraint("Distance", 15, Q("2.064678 mm")),
    Sketcher.Constraint("DistanceX", 25, 1, 25, 2, Q("1.166667 mm")),
    Sketcher.Constraint("DistanceX", 36, 1, 36, 2, Q("2.748397 mm")),
    Sketcher.Constraint("DistanceX", 41, 2, 41, 1, Q("2.754708 mm")),
    Sketcher.Constraint("DistanceY", 38, 2, 38, 1, Q("0.071514 mm")),
    Sketcher.Constraint("DistanceY", 43, 1, 43, 2, Q("0.065905 mm")),
    Sketcher.Constraint("DistanceY", -1, 1, 2, 2, Q("6.775641 mm")),
    Sketcher.Constraint("DistanceY", 44, 2, 39, 2, Q("0.49359 mm")),
])
pocket1 = doc.addObject("PartDesign::Pocket", "Pocket")
body.addObject(pocket1)
pocket1.Profile = sketch2
pocket1.Length = 1

doc.recompute()
